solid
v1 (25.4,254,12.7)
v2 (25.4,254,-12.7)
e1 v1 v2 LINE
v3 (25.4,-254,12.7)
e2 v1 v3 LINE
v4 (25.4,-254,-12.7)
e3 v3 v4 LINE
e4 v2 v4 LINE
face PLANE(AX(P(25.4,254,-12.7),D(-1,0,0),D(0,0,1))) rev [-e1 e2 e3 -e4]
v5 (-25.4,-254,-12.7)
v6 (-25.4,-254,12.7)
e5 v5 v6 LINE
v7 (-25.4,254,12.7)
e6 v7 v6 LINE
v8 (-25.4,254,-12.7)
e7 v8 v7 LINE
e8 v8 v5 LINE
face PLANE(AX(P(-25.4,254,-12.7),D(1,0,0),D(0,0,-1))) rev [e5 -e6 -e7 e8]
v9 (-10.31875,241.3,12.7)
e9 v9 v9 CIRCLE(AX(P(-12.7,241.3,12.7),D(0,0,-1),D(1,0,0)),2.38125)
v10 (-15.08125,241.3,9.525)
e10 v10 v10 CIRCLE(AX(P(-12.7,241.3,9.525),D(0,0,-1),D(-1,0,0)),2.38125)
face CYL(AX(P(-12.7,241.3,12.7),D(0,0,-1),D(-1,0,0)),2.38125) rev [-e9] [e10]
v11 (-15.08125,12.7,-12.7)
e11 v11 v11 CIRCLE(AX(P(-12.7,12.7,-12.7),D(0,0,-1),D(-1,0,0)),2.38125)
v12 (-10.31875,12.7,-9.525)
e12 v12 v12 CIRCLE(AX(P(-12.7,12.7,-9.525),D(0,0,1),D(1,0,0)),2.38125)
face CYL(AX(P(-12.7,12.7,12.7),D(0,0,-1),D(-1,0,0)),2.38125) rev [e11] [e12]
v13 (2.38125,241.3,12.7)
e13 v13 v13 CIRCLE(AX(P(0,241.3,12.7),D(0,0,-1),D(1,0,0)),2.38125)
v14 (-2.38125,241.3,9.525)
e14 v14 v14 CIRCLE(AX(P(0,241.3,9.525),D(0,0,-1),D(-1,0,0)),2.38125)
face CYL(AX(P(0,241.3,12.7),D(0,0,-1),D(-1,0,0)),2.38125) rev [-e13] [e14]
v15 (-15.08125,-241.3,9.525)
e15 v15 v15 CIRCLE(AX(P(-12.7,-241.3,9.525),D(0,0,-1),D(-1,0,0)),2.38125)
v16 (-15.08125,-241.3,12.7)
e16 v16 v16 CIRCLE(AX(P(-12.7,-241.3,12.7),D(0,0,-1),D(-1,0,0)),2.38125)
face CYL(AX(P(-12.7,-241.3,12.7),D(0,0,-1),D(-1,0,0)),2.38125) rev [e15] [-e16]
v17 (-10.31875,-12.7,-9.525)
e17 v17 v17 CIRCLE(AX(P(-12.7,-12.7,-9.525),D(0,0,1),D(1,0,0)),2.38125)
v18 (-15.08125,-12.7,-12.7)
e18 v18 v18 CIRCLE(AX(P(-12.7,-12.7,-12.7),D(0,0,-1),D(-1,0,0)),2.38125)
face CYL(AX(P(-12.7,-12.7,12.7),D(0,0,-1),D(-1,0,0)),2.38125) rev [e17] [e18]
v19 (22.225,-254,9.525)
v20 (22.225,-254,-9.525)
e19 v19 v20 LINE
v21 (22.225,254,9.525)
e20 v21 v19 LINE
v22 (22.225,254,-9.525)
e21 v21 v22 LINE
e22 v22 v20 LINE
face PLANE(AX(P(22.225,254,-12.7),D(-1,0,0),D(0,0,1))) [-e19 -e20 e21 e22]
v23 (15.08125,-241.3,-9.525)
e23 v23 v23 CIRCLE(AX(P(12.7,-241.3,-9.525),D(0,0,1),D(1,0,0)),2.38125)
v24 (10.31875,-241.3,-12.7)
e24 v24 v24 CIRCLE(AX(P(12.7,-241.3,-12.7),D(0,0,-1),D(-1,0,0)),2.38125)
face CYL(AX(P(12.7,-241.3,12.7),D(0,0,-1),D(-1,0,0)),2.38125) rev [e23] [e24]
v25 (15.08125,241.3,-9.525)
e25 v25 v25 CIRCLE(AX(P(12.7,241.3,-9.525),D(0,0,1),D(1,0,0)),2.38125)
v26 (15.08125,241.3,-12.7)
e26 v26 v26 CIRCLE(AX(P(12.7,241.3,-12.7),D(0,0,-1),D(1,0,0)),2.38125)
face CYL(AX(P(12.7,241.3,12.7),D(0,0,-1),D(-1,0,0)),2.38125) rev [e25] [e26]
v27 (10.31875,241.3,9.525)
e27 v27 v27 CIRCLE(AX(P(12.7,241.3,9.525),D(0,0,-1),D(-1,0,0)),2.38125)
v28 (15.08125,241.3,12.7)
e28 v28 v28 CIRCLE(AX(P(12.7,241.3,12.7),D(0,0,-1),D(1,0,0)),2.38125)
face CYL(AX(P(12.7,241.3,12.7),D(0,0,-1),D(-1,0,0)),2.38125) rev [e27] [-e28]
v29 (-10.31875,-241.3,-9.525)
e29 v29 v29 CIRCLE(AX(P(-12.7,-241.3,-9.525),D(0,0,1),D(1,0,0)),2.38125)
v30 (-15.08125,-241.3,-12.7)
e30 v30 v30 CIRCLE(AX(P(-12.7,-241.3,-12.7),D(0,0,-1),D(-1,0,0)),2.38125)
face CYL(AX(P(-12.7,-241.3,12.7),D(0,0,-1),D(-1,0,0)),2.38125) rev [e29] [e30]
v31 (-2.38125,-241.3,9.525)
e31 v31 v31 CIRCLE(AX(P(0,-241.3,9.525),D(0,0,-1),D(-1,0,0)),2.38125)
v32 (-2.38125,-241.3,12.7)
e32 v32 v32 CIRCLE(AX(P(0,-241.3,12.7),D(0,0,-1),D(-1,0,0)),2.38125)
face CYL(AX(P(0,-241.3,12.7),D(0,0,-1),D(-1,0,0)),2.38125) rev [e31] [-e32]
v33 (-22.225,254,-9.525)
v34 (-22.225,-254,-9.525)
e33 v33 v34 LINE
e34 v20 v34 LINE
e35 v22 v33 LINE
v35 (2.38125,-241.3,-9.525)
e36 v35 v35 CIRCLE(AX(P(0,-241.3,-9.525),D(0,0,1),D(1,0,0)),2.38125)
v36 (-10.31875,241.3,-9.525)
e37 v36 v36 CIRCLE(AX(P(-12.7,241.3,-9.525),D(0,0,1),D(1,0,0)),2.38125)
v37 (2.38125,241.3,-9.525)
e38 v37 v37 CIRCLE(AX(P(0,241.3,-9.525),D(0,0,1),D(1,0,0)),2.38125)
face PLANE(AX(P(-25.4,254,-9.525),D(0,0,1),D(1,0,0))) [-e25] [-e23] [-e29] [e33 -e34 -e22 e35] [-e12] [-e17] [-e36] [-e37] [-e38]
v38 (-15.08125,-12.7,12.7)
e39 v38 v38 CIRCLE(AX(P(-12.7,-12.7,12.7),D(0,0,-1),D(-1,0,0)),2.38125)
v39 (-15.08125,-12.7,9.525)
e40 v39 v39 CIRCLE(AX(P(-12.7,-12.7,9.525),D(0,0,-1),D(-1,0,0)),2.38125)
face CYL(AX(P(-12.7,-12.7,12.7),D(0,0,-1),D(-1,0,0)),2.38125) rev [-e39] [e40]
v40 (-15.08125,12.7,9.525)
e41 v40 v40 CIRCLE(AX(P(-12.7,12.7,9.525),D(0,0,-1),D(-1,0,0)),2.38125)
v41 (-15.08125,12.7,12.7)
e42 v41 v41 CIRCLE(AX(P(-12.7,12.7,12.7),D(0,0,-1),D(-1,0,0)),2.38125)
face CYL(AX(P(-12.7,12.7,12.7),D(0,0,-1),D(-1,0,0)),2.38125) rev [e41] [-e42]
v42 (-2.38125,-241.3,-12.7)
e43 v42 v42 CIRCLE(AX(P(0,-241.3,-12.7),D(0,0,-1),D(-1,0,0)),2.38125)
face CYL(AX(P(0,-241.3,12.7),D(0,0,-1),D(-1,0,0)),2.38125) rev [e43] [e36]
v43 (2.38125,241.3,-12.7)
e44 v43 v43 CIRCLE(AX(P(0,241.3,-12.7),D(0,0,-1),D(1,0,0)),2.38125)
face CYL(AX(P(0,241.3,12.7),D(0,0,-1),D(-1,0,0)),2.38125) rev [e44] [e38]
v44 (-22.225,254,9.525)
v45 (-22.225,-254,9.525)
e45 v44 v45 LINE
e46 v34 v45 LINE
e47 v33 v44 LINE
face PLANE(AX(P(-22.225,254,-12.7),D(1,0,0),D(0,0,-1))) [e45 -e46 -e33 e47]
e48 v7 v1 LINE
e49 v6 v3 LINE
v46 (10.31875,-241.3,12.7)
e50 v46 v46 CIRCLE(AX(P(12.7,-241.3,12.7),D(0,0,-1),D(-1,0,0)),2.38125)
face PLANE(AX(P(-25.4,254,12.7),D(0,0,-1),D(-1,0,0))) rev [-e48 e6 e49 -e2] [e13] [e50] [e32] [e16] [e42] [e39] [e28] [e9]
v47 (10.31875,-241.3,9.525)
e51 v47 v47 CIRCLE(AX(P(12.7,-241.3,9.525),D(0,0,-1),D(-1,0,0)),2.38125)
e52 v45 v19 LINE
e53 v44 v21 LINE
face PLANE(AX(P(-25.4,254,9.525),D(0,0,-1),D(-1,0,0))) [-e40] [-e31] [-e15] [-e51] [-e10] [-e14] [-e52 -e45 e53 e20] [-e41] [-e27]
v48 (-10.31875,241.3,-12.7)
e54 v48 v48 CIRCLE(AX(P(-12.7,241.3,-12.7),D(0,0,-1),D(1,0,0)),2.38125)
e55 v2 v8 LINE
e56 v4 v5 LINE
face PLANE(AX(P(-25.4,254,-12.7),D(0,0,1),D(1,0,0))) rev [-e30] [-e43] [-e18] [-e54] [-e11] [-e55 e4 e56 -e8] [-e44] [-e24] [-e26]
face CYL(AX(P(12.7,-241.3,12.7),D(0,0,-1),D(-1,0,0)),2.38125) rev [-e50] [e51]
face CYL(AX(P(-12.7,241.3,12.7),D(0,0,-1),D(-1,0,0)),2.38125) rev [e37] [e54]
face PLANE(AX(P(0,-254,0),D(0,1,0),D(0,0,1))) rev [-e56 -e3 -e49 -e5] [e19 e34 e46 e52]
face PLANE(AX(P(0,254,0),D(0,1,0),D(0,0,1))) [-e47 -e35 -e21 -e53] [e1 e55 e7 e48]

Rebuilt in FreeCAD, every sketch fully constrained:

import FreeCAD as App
import Part
import Sketcher

V = App.Vector
Q = App.Units.Quantity


def faces_at(feature, points):
    """Names of the faces that lie closest to the given points."""
    faces = feature.Shape.Faces
    near = lambda p: min(range(len(faces)), key=lambda i: faces[i].distToShape(Part.Vertex(*p))[0])
    return sorted({f"Face{near(p) + 1}" for p in points})


def add_polygon(sketch, points):
    """Adds a closed chain of lines whose ends are joined by coincident constraints."""
    first, n = sketch.GeometryCount, len(points)
    for a, b in zip(points, points[1:] + points[:1]):
        sketch.addGeometry(Part.LineSegment(App.Vector(*a, 0), App.Vector(*b, 0)), False)
    for i in range(n):
        sketch.addConstraint(Sketcher.Constraint("Coincident", first + i, 2, first + (i + 1) % n, 1))

doc = App.newDocument("Part")
body = doc.addObject("PartDesign::Body", "Body")

# Sketch on XZ plane
sketch1 = doc.addObject("Sketcher::SketchObject", "Sketch")
body.addObject(sketch1)
sketch1.AttachmentSupport = (doc.XZ_Plane, [""])
sketch1.MapMode = "FlatFace"
add_polygon(sketch1, [(-25, -13), (-25, 13), (25, 13), (25, -13)])  # lines 0-3
sketch1.addConstraint([
    Sketcher.Constraint("Vertical", 0),
    Sketcher.Constraint("Horizontal", 1),
    Sketcher.Constraint("Vertical", 2),
    Sketcher.Constraint("Horizontal", 3),
    Sketcher.Constraint("Symmetric", 0, 2, 2, 2, -1, 1),
    Sketcher.Constraint("DistanceX", 1, 1, 1, 2, Q("2 in")),
    Sketcher.Constraint("DistanceY", 0, 1, 0, 2, Q("1 in")),
])
pad1 = doc.addObject("PartDesign::Pad", "Pad")
body.addObject(pad1)
pad1.Profile = sketch1
pad1.Length = Q("20 in")
pad1.Midplane = True
doc.recompute()

thickness = doc.addObject("PartDesign::Thickness", "Thickness")
body.addObject(thickness)
thickness.Base = (pad1, faces_at(pad1, [(0, 254, 0), (0, -254, 0)]))
thickness.Value = Q("0.125 in")
thickness.Reversed = True
thickness.Join = "Intersection"

# Sketch on XY plane
sketch2 = doc.addObject("Sketcher::SketchObject", "Sketch001")
body.addObject(sketch2)
sketch2.AttachmentSupport = (doc.XY_Plane, [""])
sketch2.MapMode = "FlatFace"
sketch2.AttachmentOffset = App.Placement(V(0, 0, -0.5 * 25.4), App.Rotation())
sketch2.addGeometry([
    Part.Circle(V(-12.7, -12.7, 0), V(0, 0, 1), 2.4),
    Part.Circle(V(-12.7, 12.7, 0), V(0, 0, 1), 2.4),
], False)
sketch2.addConstraint([
    Sketcher.Constraint("Equal", 0, 1),
    Sketcher.Constraint("Symmetric", 0, 3, 1, 3, -1),
    Sketcher.Constraint("Diameter", 0, Q("0.1875 in")),
    Sketcher.Constraint("DistanceY", 0, 3, 1, 3, Q("1 in")),
    Sketcher.Constraint("DistanceX", 0, 3, -1, 1, Q("0.5 in")),
])
pocket1 = doc.addObject("PartDesign::Pocket", "Pocket")
body.addObject(pocket1)
pocket1.Profile = sketch2
pocket1.Type = "ThroughAll"
pocket1.Reversed = True

# Sketch on XY plane
sketch3 = doc.addObject("Sketcher::SketchObject", "Sketch002")
body.addObject(sketch3)
sketch3.AttachmentSupport = (doc.XY_Plane, [""])
sketch3.MapMode = "FlatFace"
sketch3.AttachmentOffset = App.Placement(V(0, 0, -0.5 * 25.4), App.Rotation())
sketch3.addGeometry([
    Part.Circle(V(0, -241.3, 0), V(0, 0, 1), 2.4),  # 0
    Part.Circle(V(-12.7, -241.3, 0), V(0, 0, 1), 2.4),  # 1
    Part.Circle(V(12.7, -241.3, 0), V(0, 0, 1), 2.4),  # 2
    Part.Circle(V(12.7, 241.3, 0), V(0, 0, 1), 2.4),  # 3
    Part.Circle(V(-12.7, 241.3, 0), V(0, 0, 1), 2.4),  # 4
    Part.Circle(V(0, 241.3, 0), V(0, 0, 1), 2.4),  # 5
], False)
sketch3.addConstraint([
    Sketcher.Constraint("Equal", 0, 1),
    Sketcher.Constraint("Equal", 1, 2),
    Sketcher.Constraint("Equal", 2, 3),
    Sketcher.Constraint("Equal", 3, 4),
    Sketcher.Constraint("Equal", 4, 5),
    Sketcher.Constraint("Symmetric", 1, 3, 3, 3, -1, 1),
    Sketcher.Constraint("Symmetric", 2, 3, 4, 3, -1, 1),
    Sketcher.Constraint("Symmetric", 0, 3, 5, 3, -1, 1),
    Sketcher.Constraint("Symmetric", 1, 3, 2, 3, -2),
    Sketcher.Constraint("PointOnObject", 0, 3, -2),
    Sketcher.Constraint("Horizontal", 0, 3, 1, 3),
    Sketcher.Constraint("Diameter", 0, Q("0.1875 in")),
    Sketcher.Constraint("DistanceX", 1, 3, 2, 3, Q("1 in")),
    Sketcher.Constraint("DistanceY", 2, 3, 3, 3, Q("19 in")),
])
pocket2 = doc.addObject("PartDesign::Pocket", "Pocket001")
body.addObject(pocket2)
pocket2.Profile = sketch3
pocket2.Type = "ThroughAll"
pocket2.Reversed = True

doc.recompute()
